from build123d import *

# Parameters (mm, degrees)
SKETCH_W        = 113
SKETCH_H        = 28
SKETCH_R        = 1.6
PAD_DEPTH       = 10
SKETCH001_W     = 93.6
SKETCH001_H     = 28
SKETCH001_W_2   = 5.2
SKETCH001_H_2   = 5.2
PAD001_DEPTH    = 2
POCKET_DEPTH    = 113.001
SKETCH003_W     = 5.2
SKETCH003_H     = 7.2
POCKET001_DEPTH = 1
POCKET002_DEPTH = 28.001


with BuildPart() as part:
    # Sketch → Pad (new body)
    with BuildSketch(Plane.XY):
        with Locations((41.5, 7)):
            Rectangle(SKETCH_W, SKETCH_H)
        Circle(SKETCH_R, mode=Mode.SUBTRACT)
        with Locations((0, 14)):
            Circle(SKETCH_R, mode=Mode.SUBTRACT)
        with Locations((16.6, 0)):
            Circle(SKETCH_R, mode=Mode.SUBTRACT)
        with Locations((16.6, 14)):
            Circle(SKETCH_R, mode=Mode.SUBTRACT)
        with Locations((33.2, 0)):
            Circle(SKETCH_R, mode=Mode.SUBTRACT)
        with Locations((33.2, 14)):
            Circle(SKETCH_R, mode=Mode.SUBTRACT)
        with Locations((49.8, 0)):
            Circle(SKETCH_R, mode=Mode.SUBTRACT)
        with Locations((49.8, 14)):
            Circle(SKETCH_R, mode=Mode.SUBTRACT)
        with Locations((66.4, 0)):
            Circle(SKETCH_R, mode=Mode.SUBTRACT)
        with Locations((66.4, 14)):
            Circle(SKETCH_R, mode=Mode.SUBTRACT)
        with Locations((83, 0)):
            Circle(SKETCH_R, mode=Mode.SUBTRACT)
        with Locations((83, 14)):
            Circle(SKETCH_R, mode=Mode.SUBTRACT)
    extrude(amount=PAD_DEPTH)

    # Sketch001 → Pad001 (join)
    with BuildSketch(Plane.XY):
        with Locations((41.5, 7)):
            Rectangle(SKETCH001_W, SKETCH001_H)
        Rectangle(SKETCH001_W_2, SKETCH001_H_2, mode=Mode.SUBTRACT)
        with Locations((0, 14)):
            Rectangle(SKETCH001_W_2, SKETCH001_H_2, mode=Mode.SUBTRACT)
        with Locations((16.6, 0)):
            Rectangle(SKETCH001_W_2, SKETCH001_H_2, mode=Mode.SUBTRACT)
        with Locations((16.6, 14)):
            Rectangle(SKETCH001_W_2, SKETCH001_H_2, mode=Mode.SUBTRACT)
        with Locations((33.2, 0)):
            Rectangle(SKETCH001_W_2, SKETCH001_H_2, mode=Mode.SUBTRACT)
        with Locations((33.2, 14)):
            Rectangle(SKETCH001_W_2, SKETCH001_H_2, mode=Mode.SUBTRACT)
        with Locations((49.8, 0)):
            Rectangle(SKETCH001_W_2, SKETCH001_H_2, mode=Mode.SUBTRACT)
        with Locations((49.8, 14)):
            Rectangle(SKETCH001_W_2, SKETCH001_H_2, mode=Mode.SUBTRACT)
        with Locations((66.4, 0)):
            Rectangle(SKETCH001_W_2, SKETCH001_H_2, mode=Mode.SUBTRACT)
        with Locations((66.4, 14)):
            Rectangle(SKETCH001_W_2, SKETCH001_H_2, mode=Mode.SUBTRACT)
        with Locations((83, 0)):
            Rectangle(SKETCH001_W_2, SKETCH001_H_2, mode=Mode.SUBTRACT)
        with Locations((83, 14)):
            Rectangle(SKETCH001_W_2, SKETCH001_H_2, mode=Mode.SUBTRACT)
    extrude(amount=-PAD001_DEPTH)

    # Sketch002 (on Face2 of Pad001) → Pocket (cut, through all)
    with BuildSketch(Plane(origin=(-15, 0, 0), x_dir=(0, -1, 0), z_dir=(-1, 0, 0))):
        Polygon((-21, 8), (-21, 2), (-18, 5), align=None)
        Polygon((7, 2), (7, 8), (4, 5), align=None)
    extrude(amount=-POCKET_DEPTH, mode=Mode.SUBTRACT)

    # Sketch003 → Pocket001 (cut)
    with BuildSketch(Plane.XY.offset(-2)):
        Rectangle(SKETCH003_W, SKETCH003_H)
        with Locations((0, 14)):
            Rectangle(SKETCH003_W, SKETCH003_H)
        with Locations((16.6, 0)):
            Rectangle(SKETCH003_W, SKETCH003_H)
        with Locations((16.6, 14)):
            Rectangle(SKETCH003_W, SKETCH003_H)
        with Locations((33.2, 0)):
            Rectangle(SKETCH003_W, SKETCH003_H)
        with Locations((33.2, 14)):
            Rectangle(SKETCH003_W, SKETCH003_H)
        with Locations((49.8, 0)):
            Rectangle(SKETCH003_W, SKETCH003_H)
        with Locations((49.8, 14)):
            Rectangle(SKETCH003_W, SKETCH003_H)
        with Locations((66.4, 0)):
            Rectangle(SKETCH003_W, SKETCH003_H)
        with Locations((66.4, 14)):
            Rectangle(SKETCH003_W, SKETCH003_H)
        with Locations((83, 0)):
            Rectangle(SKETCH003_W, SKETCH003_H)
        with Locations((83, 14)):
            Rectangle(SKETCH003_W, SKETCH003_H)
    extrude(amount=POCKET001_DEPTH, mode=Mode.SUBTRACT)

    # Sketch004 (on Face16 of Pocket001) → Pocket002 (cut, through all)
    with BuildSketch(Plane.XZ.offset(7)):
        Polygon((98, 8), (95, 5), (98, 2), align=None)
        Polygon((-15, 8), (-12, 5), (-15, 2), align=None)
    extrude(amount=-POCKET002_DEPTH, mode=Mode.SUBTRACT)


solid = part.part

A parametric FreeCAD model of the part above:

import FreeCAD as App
import Part
import Sketcher


def add_polygon(sketch, points):
    """Adds a closed chain of lines whose ends are joined by coincident constraints."""
    first, n = sketch.GeometryCount, len(points)
    for a, b in zip(points, points[1:] + points[:1]):
        sketch.addGeometry(Part.LineSegment(App.Vector(*a, 0), App.Vector(*b, 0)), False)
    for i in range(n):
        sketch.addConstraint(Sketcher.Constraint("Coincident", first + i, 2, first + (i + 1) % n, 1))

doc = App.newDocument("Part")
params = doc.addObject("Spreadsheet::Sheet", "Params")
for row, (alias, value) in enumerate([
    ("sketch1_diameter", "3.2 mm"),
    ("sketch1_width", "113 mm"),
    ("sketch1_height", "28 mm"),
    ("pad1_length", "10 mm"),
    ("sketch2_height", "28 mm"),
    ("sketch2_width", "93.6 mm"),
    ("sketch2_width2", "5.2 mm"),
    ("pad2_length", "2 mm"),
    ("sketch3_height", "6 mm"),
    ("sketch4_width", "5.2 mm"),
    ("sketch4_height", "7.2 mm"),
    ("pocket2_length", "1 mm"),
    ("sketch5_height", "6 mm"),
], start=1):
    params.set(f"A{row}", alias)
    params.set(f"B{row}", "=" + value)
    params.setAlias(f"B{row}", alias)

body = doc.addObject("PartDesign::Body", "Body")

sketch1 = body.newObject("Sketcher::SketchObject", "Sketch")
sketch1.AttachmentSupport = (doc.getObject("XY_Plane"), [""])
sketch1.MapMode = "FlatFace"
add_polygon(sketch1, [(-15, 21), (-15, -7), (98, -7), (98, 21)])
sketch1.addGeometry(Part.Circle(App.Vector(0, 0, 0), App.Vector(0, 0, 1), 1.6), False)
sketch1.addGeometry(Part.Circle(App.Vector(16.6, 0, 0), App.Vector(0, 0, 1), 1.6), False)
sketch1.addGeometry(Part.Circle(App.Vector(33.2, 0, 0), App.Vector(0, 0, 1), 1.6), False)
sketch1.addGeometry(Part.Circle(App.Vector(49.8, 0, 0), App.Vector(0, 0, 1), 1.6), False)
sketch1.addGeometry(Part.Circle(App.Vector(66.4, 0, 0), App.Vector(0, 0, 1), 1.6), False)
sketch1.addGeometry(Part.Circle(App.Vector(83, 0, 0), App.Vector(0, 0, 1), 1.6), False)
sketch1.addGeometry(Part.Circle(App.Vector(0, 14, 0), App.Vector(0, 0, 1), 1.6), False)
sketch1.addGeometry(Part.Circle(App.Vector(16.6, 14, 0), App.Vector(0, 0, 1), 1.6), False)
sketch1.addGeometry(Part.Circle(App.Vector(33.2, 14, 0), App.Vector(0, 0, 1), 1.6), False)
sketch1.addGeometry(Part.Circle(App.Vector(49.8, 14, 0), App.Vector(0, 0, 1), 1.6), False)
sketch1.addGeometry(Part.Circle(App.Vector(66.4, 14, 0), App.Vector(0, 0, 1), 1.6), False)
sketch1.addGeometry(Part.Circle(App.Vector(83, 14, 0), App.Vector(0, 0, 1), 1.6), False)
sketch1.addConstraint([
    Sketcher.Constraint("Vertical", 0),
    Sketcher.Constraint("Horizontal", 1),
    Sketcher.Constraint("Vertical", 2),
    Sketcher.Constraint("Horizontal", 3),
    Sketcher.Constraint("Coincident", 4, 3, -1, 1),
    Sketcher.Constraint("Equal", 4, 5),
    Sketcher.Constraint("Equal", 5, 6),
    Sketcher.Constraint("Equal", 6, 7),
    Sketcher.Constraint("Equal", 7, 8),
    Sketcher.Constraint("Equal", 8, 9),
    Sketcher.Constraint("Equal", 9, 10),
    Sketcher.Constraint("Equal", 10, 11),
    Sketcher.Constraint("Equal", 11, 12),
    Sketcher.Constraint("Equal", 12, 13),
    Sketcher.Constraint("Equal", 13, 14),
    Sketcher.Constraint("Equal", 14, 15),
    Sketcher.Constraint("PointOnObject", 5, 3, -1),
    Sketcher.Constraint("PointOnObject", 6, 3, -1),
    Sketcher.Constraint("PointOnObject", 7, 3, -1),
    Sketcher.Constraint("PointOnObject", 8, 3, -1),
    Sketcher.Constraint("PointOnObject", 9, 3, -1),
    Sketcher.Constraint("PointOnObject", 10, 3, -2),
    Sketcher.Constraint("Horizontal", 10, 3, 11, 3),
    Sketcher.Constraint("Horizontal", 11, 3, 12, 3),
    Sketcher.Constraint("Horizontal", 12, 3, 13, 3),
    Sketcher.Constraint("Horizontal", 13, 3, 14, 3),
    Sketcher.Constraint("Horizontal", 14, 3, 15, 3),
    Sketcher.Constraint("Vertical", 5, 3, 11, 3),
    Sketcher.Constraint("Vertical", 6, 3, 12, 3),
    Sketcher.Constraint("Vertical", 7, 3, 13, 3),
    Sketcher.Constraint("Vertical", 8, 3, 14, 3),
    Sketcher.Constraint("Vertical", 9, 3, 15, 3),
    Sketcher.Constraint("Diameter", 4, 3.2),
    Sketcher.Constraint("DistanceX", 1, 1, 1, 2, 113.0),
    Sketcher.Constraint("DistanceY", 0, 2, 0, 1, 28.0),
    Sketcher.Constraint("DistanceX", -1, 1, 9, 3, 83.0),
    Sketcher.Constraint("DistanceY", -1, 1, 10, 3, 14.0),
    Sketcher.Constraint("DistanceX", 0, 2, -1, 1, 15.0),
    Sketcher.Constraint("DistanceY", 0, 2, -1, 1, 7.0),
    Sketcher.Constraint("DistanceX", -1, 1, 5, 3, 16.6),
    Sketcher.Constraint("DistanceX", -1, 1, 6, 3, 33.2),
    Sketcher.Constraint("DistanceX", -1, 1, 7, 3, 49.8),
    Sketcher.Constraint("DistanceX", -1, 1, 8, 3, 66.4),
])
sketch1.setExpression("Constraints[36]", "Params.sketch1_diameter")
sketch1.setExpression("Constraints[37]", "Params.sketch1_width")
sketch1.setExpression("Constraints[38]", "Params.sketch1_height")
pad1 = body.newObject("PartDesign::Pad", "Pad")
pad1.Profile = sketch1
pad1.setExpression("Length", "Params.pad1_length")

sketch2 = body.newObject("Sketcher::SketchObject", "Sketch001")
sketch2.AttachmentSupport = (doc.getObject("XY_Plane"), [""])
sketch2.MapMode = "FlatFace"
add_polygon(sketch2, [(-5, 21), (-5, -7), (88, -7), (88, 21)])
add_polygon(sketch2, [(3, -3), (-3, -3), (-3, 3), (3, 3)])
add_polygon(sketch2, [(19, -3), (14, -3), (14, 3), (19, 3)])
add_polygon(sketch2, [(36, -3), (31, -3), (31, 3), (36, 3)])
add_polygon(sketch2, [(52, -3), (47, -3), (47, 3), (52, 3)])
add_polygon(sketch2, [(69, -3), (64, -3), (64, 3), (69, 3)])
add_polygon(sketch2, [(86, -3), (80, -3), (80, 3), (86, 3)])
add_polygon(sketch2, [(3, 11), (-3, 11), (-3, 17), (3, 17)])
add_polygon(sketch2, [(19, 11), (14, 11), (14, 17), (19, 17)])
add_polygon(sketch2, [(36, 11), (31, 11), (31, 17), (36, 17)])
add_polygon(sketch2, [(52, 11), (47, 11), (47, 17), (52, 17)])
add_polygon(sketch2, [(69, 11), (64, 11), (64, 17), (69, 17)])
add_polygon(sketch2, [(86, 11), (80, 11), (80, 17), (86, 17)])
sketch2.addConstraint([
    Sketcher.Constraint("Vertical", 0),
    Sketcher.Constraint("Horizontal", 1),
    Sketcher.Constraint("Vertical", 2),
    Sketcher.Constraint("Horizontal", 3),
    Sketcher.Constraint("Horizontal", 4),
    Sketcher.Constraint("Vertical", 5),
    Sketcher.Constraint("Horizontal", 6),
    Sketcher.Constraint("Vertical", 7),
    Sketcher.Constraint("Horizontal", 8),
    Sketcher.Constraint("Vertical", 9),
    Sketcher.Constraint("Horizontal", 10),
    Sketcher.Constraint("Vertical", 11),
    Sketcher.Constraint("Horizontal", 12),
    Sketcher.Constraint("Vertical", 13),
    Sketcher.Constraint("Horizontal", 14),
    Sketcher.Constraint("Vertical", 15),
    Sketcher.Constraint("Horizontal", 16),
    Sketcher.Constraint("Vertical", 17),
    Sketcher.Constraint("Horizontal", 18),
    Sketcher.Constraint("Vertical", 19),
    Sketcher.Constraint("Horizontal", 20),
    Sketcher.Constraint("Vertical", 21),
    Sketcher.Constraint("Horizontal", 22),
    Sketcher.Constraint("Vertical", 23),
    Sketcher.Constraint("Horizontal", 24),
    Sketcher.Constraint("Vertical", 25),
    Sketcher.Constraint("Horizontal", 26),
    Sketcher.Constraint("Vertical", 27),
    Sketcher.Constraint("Horizontal", 28),
    Sketcher.Constraint("Vertical", 29),
    Sketcher.Constraint("Horizontal", 30),
    Sketcher.Constraint("Vertical", 31),
    Sketcher.Constraint("Horizontal", 32),
    Sketcher.Constraint("Vertical", 33),
    Sketcher.Constraint("Horizontal", 34),
    Sketcher.Constraint("Vertical", 35),
    Sketcher.Constraint("Horizontal", 36),
    Sketcher.Constraint("Vertical", 37),
    Sketcher.Constraint("Horizontal", 38),
    Sketcher.Constraint("Vertical", 39),
    Sketcher.Constraint("Horizontal", 40),
    Sketcher.Constraint("Vertical", 41),
    Sketcher.Constraint("Horizontal", 42),
    Sketcher.Constraint("Vertical", 43),
    Sketcher.Constraint("Horizontal", 44),
    Sketcher.Constraint("Vertical", 45),
    Sketcher.Constraint("Horizontal", 46),
    Sketcher.Constraint("Vertical", 47),
    Sketcher.Constraint("Horizontal", 48),
    Sketcher.Constraint("Vertical", 49),
    Sketcher.Constraint("Horizontal", 50),
    Sketcher.Constraint("Vertical", 51),
    Sketcher.Constraint("Symmetric", 4, 2, 6, 2, -1, 1),
    Sketcher.Constraint("Horizontal", 7, 2, 8, 2),
    Sketcher.Constraint("Horizontal", 6, 2, 9, 2),
    Sketcher.Constraint("Horizontal", 11, 2, 12, 2),
    Sketcher.Constraint("Horizontal", 10, 2, 13, 2),
    Sketcher.Constraint("Horizontal", 15, 2, 16, 2),
    Sketcher.Constraint("Horizontal", 14, 2, 17, 2),
    Sketcher.Constraint("Horizontal", 19, 2, 20, 2),
    Sketcher.Constraint("Horizontal", 18, 2, 21, 2),
    Sketcher.Constraint("Horizontal", 23, 2, 24, 2),
    Sketcher.Constraint("Horizontal", 22, 2, 25, 2),
    Sketcher.Constraint("Horizontal", 31, 2, 32, 2),
    Sketcher.Constraint("Horizontal", 30, 2, 33, 2),
    Sketcher.Constraint("Horizontal", 35, 2, 36, 2),
    Sketcher.Constraint("Horizontal", 34, 2, 37, 2),
    Sketcher.Constraint("Horizontal", 39, 2, 40, 2),
    Sketcher.Constraint("Horizontal", 38, 2, 41, 2),
    Sketcher.Constraint("Horizontal", 43, 2, 44, 2),
    Sketcher.Constraint("Horizontal", 42, 2, 45, 2),
    Sketcher.Constraint("Horizontal", 47, 2, 48, 2),
    Sketcher.Constraint("Horizontal", 46, 2, 49, 2),
    Sketcher.Constraint("Vertical", 5, 2, 28, 2),
    Sketcher.Constraint("Vertical", 7, 2, 30, 2),
    Sketcher.Constraint("Vertical", 9, 2, 32, 2),
    Sketcher.Constraint("Vertical", 11, 2, 34, 2),
    Sketcher.Constraint("Vertical", 13, 2, 36, 2),
    Sketcher.Constraint("Vertical", 15, 2, 38, 2),
    Sketcher.Constraint("Vertical", 17, 2, 40, 2),
    Sketcher.Constraint("Vertical", 19, 2, 42, 2),
    Sketcher.Constraint("Vertical", 21, 2, 44, 2),
    Sketcher.Constraint("Vertical", 23, 2, 46, 2),
    Sketcher.Constraint("Vertical", 25, 2, 48, 2),
    Sketcher.Constraint("Vertical", 27, 2, 50, 2),
    Sketcher.Constraint("Equal", 6, 8),
    Sketcher.Constraint("Equal", 10, 12),
    Sketcher.Constraint("Equal", 14, 16),
    Sketcher.Constraint("Equal", 18, 20),
    Sketcher.Constraint("Equal", 22, 24),
    Sketcher.Constraint("Equal", 50, 5),
    Sketcher.Constraint("Equal", 27, 29),
    Sketcher.Constraint("DistanceY", 0, 2, 0, 1, 28.0),
    Sketcher.Constraint("DistanceX", 1, 1, 1, 2, 93.6),
    Sketcher.Constraint("DistanceX", 4, 2, 4, 1, 5.2),
    Sketcher.Constraint("DistanceY", 0, 2, -1, 1, 7.0),
    Sketcher.Constraint("DistanceX", -1, 1, 8, 2, 14.0),
    Sketcher.Constraint("DistanceX", -1, 1, 22, 2, 69.0),
    Sketcher.Constraint("DistanceX", 7, 2, 12, 2, 28.0),
    Sketcher.Constraint("DistanceX", 11, 2, 16, 2, 28.0),
    Sketcher.Constraint("DistanceY", 4, 2, 28, 2, 14.0),
    Sketcher.Constraint("DistanceX", 0, 2, -1, 1, 5.3),
    Sketcher.Constraint("DistanceX", -1, 1, 24, 2, 80.4),
])
sketch2.setExpression("Constraints[144]", "Params.sketch2_height")
sketch2.setExpression("Constraints[145]", "Params.sketch2_width")
sketch2.setExpression("Constraints[146]", "Params.sketch2_width2")
pad2 = body.newObject("PartDesign::Pad", "Pad001")
pad2.Profile = sketch2
pad2.setExpression("Length", "Params.pad2_length")
pad2.Reversed = True

sketch3 = body.newObject("Sketcher::SketchObject", "Sketch002")
sketch3.AttachmentSupport = (doc.getObject("YZ_Plane"), [""])
sketch3.MapMode = "FlatFace"
sketch3.AttachmentOffset = App.Placement(App.Vector(0, 0, -15), App.Rotation())
add_polygon(sketch3, [(21, 8), (21, 2), (18, 5)])
add_polygon(sketch3, [(-7, 2), (-7, 8), (-4, 5)])
sketch3.addConstraint([
    Sketcher.Constraint("Vertical", 0),
    Sketcher.Constraint("Vertical", 3),
    Sketcher.Constraint("Perpendicular", 1, 2),
    Sketcher.Constraint("Perpendicular", 2, 4),
    Sketcher.Constraint("Perpendicular", 4, 5),
    Sketcher.Constraint("Horizontal", 2, 2, 3, 2),
    Sketcher.Constraint("Horizontal", 1, 2, 4, 2),
    Sketcher.Constraint("Horizontal", 0, 2, 5, 2),
    Sketcher.Constraint("DistanceY", 0, 2, 0, 1, 6.0),
    Sketcher.Constraint("DistanceX", -1, 1, 0, 2, 21.0),
    Sketcher.Constraint("DistanceY", -1, 1, 0, 2, 2.0),
    Sketcher.Constraint("DistanceX", 3, 2, -1, 1, 7.0),
])
sketch3.setExpression("Constraints[14]", "Params.sketch3_height")
pocket1 = body.newObject("PartDesign::Pocket", "Pocket")
pocket1.Profile = sketch3
pocket1.Type = "ThroughAll"
pocket1.Reversed = True

sketch4 = body.newObject("Sketcher::SketchObject", "Sketch003")
sketch4.AttachmentSupport = (doc.getObject("XY_Plane"), [""])
sketch4.MapMode = "FlatFace"
sketch4.AttachmentOffset = App.Placement(App.Vector(0, 0, -2), App.Rotation())
add_polygon(sketch4, [(-3, 4), (-3, -4), (3, -4), (3, 4)])
add_polygon(sketch4, [(-3, 18), (-3, 10), (3, 10), (3, 18)])
add_polygon(sketch4, [(14, 4), (14, -4), (19, -4), (19, 4)])
add_polygon(sketch4, [(14, 18), (14, 10), (19, 10), (19, 18)])
add_polygon(sketch4, [(31, 4), (31, -4), (36, -4), (36, 4)])
add_polygon(sketch4, [(31, 18), (31, 10), (36, 10), (36, 18)])
add_polygon(sketch4, [(47, 4), (47, -4), (52, -4), (52, 4)])
add_polygon(sketch4, [(47, 18), (47, 10), (52, 10), (52, 18)])
add_polygon(sketch4, [(64, 4), (64, -4), (69, -4), (69, 4)])
add_polygon(sketch4, [(64, 18), (64, 10), (69, 10), (69, 18)])
add_polygon(sketch4, [(80, 4), (80, -4), (86, -4), (86, 4)])
add_polygon(sketch4, [(80, 18), (80, 10), (86, 10), (86, 18)])
sketch4.addConstraint([
    Sketcher.Constraint("Vertical", 0),
    Sketcher.Constraint("Horizontal", 1),
    Sketcher.Constraint("Vertical", 2),
    Sketcher.Constraint("Horizontal", 3),
    Sketcher.Constraint("Vertical", 4),
    Sketcher.Constraint("Horizontal", 5),
    Sketcher.Constraint("Vertical", 6),
    Sketcher.Constraint("Horizontal", 7),
    Sketcher.Constraint("Vertical", 8),
    Sketcher.Constraint("Horizontal", 9),
    Sketcher.Constraint("Vertical", 10),
    Sketcher.Constraint("Horizontal", 11),
    Sketcher.Constraint("Vertical", 12),
    Sketcher.Constraint("Horizontal", 13),
    Sketcher.Constraint("Vertical", 14),
    Sketcher.Constraint("Horizontal", 15),
    Sketcher.Constraint("Vertical", 16),
    Sketcher.Constraint("Horizontal", 17),
    Sketcher.Constraint("Vertical", 18),
    Sketcher.Constraint("Horizontal", 19),
    Sketcher.Constraint("Vertical", 20),
    Sketcher.Constraint("Horizontal", 21),
    Sketcher.Constraint("Vertical", 22),
    Sketcher.Constraint("Horizontal", 23),
    Sketcher.Constraint("Vertical", 24),
    Sketcher.Constraint("Horizontal", 25),
    Sketcher.Constraint("Vertical", 26),
    Sketcher.Constraint("Horizontal", 27),
    Sketcher.Constraint("Vertical", 28),
    Sketcher.Constraint("Horizontal", 29),
    Sketcher.Constraint("Vertical", 30),
    Sketcher.Constraint("Horizontal", 31),
    Sketcher.Constraint("Vertical", 32),
    Sketcher.Constraint("Horizontal", 33),
    Sketcher.Constraint("Vertical", 34),
    Sketcher.Constraint("Horizontal", 35),
    Sketcher.Constraint("Vertical", 36),
    Sketcher.Constraint("Horizontal", 37),
    Sketcher.Constraint("Vertical", 38),
    Sketcher.Constraint("Horizontal", 39),
    Sketcher.Constraint("Vertical", 40),
    Sketcher.Constraint("Horizontal", 41),
    Sketcher.Constraint("Vertical", 42),
    Sketcher.Constraint("Horizontal", 43),
    Sketcher.Constraint("Vertical", 44),
    Sketcher.Constraint("Horizontal", 45),
    Sketcher.Constraint("Vertical", 46),
    Sketcher.Constraint("Horizontal", 47),
    Sketcher.Constraint("Symmetric", 0, 2, 2, 2, -1, 1),
    Sketcher.Constraint("Horizontal", 1, 2, 8, 2),
    Sketcher.Constraint("Horizontal", 3, 2, 10, 2),
    Sketcher.Constraint("Horizontal", 5, 2, 12, 2),
    Sketcher.Constraint("Horizontal", 7, 2, 14, 2),
    Sketcher.Constraint("Horizontal", 9, 2, 16, 2),
    Sketcher.Constraint("Horizontal", 11, 2, 18, 2),
    Sketcher.Constraint("Horizontal", 13, 2, 20, 2),
    Sketcher.Constraint("Horizontal", 15, 2, 22, 2),
    Sketcher.Constraint("Horizontal", 17, 2, 24, 2),
    Sketcher.Constraint("Horizontal", 19, 2, 26, 2),
    Sketcher.Constraint("Horizontal", 21, 2, 28, 2),
    Sketcher.Constraint("Horizontal", 23, 2, 30, 2),
    Sketcher.Constraint("Horizontal", 25, 2, 32, 2),
    Sketcher.Constraint("Horizontal", 27, 2, 34, 2),
    Sketcher.Constraint("Horizontal", 29, 2, 36, 2),
    Sketcher.Constraint("Horizontal", 31, 2, 38, 2),
    Sketcher.Constraint("Horizontal", 33, 2, 40, 2),
    Sketcher.Constraint("Horizontal", 35, 2, 42, 2),
    Sketcher.Constraint("Horizontal", 37, 2, 44, 2),
    Sketcher.Constraint("Horizontal", 39, 2, 46, 2),
    Sketcher.Constraint("Vertical", 3, 2, 4, 2),
    Sketcher.Constraint("Vertical", 2, 2, 5, 2),
    Sketcher.Constraint("Vertical", 11, 2, 12, 2),
    Sketcher.Constraint("Vertical", 10, 2, 13, 2),
    Sketcher.Constraint("Vertical", 19, 2, 20, 2),
    Sketcher.Constraint("Vertical", 18, 2, 21, 2),
    Sketcher.Constraint("Vertical", 27, 2, 28, 2),
    Sketcher.Constraint("Vertical", 26, 2, 29, 2),
    Sketcher.Constraint("Vertical", 35, 2, 36, 2),
    Sketcher.Constraint("Vertical", 34, 2, 37, 2),
    Sketcher.Constraint("Vertical", 43, 2, 44, 2),
    Sketcher.Constraint("Vertical", 42, 2, 45, 2),
    Sketcher.Constraint("Equal", 7, 9),
    Sketcher.Constraint("Equal", 15, 17),
    Sketcher.Constraint("Equal", 23, 25),
    Sketcher.Constraint("Equal", 31, 33),
    Sketcher.Constraint("Equal", 39, 41),
    Sketcher.Constraint("Equal", 2, 4),
    Sketcher.Constraint("DistanceX", 1, 1, 1, 2, 5.2),
    Sketcher.Constraint("DistanceY", 0, 2, 0, 1, 7.2),
    Sketcher.Constraint("DistanceX", -1, 1, 8, 2, 14.0),
    Sketcher.Constraint("DistanceX", -1, 1, 33, 2, 69.0),
    Sketcher.Constraint("DistanceY", 0, 2, 4, 2, 14.0),
    Sketcher.Constraint("DistanceX", -1, 1, 16, 2, 30.6),
    Sketcher.Constraint("DistanceX", -1, 1, 24, 2, 47.2),
    Sketcher.Constraint("DistanceX", -1, 1, 40, 2, 80.4),
])
sketch4.setExpression("Constraints[135]", "Params.sketch4_width")
sketch4.setExpression("Constraints[136]", "Params.sketch4_height")
pocket2 = body.newObject("PartDesign::Pocket", "Pocket001")
pocket2.Profile = sketch4
pocket2.setExpression("Length", "Params.pocket2_length")
pocket2.Reversed = True

sketch5 = body.newObject("Sketcher::SketchObject", "Sketch004")
sketch5.AttachmentSupport = (doc.getObject("XZ_Plane"), [""])
sketch5.MapMode = "FlatFace"
sketch5.AttachmentOffset = App.Placement(App.Vector(0, 0, 7), App.Rotation())
add_polygon(sketch5, [(98, 8), (95, 5), (98, 2)])
add_polygon(sketch5, [(-12, 5), (-15, 8), (-15, 2)])
sketch5.addConstraint([
    Sketcher.Constraint("Vertical", 2),
    Sketcher.Constraint("Vertical", 4),
    Sketcher.Constraint("Perpendicular", 0, 1),
    Sketcher.Constraint("Parallel", 1, 3),
    Sketcher.Constraint("Perpendicular", 3, 5),
    Sketcher.Constraint("Horizontal", 2, 2, 3, 2),
    Sketcher.Constraint("Horizontal", 1, 2, 4, 2),
    Sketcher.Constraint("Horizontal", 0, 2, 5, 2),
    Sketcher.Constraint("DistanceY", 2, 1, 2, 2, 6.0),
    Sketcher.Constraint("DistanceX", -1, 1, 0, 2, 95.0),
    Sketcher.Constraint("DistanceY", -1, 1, 0, 2, 5.0),
    Sketcher.Constraint("DistanceX", 3, 2, -1, 1, 15.0),
])
sketch5.setExpression("Constraints[14]", "Params.sketch5_height")
pocket3 = body.newObject("PartDesign::Pocket", "Pocket002")
pocket3.Profile = sketch5
pocket3.Type = "ThroughAll"

doc.recompute()
